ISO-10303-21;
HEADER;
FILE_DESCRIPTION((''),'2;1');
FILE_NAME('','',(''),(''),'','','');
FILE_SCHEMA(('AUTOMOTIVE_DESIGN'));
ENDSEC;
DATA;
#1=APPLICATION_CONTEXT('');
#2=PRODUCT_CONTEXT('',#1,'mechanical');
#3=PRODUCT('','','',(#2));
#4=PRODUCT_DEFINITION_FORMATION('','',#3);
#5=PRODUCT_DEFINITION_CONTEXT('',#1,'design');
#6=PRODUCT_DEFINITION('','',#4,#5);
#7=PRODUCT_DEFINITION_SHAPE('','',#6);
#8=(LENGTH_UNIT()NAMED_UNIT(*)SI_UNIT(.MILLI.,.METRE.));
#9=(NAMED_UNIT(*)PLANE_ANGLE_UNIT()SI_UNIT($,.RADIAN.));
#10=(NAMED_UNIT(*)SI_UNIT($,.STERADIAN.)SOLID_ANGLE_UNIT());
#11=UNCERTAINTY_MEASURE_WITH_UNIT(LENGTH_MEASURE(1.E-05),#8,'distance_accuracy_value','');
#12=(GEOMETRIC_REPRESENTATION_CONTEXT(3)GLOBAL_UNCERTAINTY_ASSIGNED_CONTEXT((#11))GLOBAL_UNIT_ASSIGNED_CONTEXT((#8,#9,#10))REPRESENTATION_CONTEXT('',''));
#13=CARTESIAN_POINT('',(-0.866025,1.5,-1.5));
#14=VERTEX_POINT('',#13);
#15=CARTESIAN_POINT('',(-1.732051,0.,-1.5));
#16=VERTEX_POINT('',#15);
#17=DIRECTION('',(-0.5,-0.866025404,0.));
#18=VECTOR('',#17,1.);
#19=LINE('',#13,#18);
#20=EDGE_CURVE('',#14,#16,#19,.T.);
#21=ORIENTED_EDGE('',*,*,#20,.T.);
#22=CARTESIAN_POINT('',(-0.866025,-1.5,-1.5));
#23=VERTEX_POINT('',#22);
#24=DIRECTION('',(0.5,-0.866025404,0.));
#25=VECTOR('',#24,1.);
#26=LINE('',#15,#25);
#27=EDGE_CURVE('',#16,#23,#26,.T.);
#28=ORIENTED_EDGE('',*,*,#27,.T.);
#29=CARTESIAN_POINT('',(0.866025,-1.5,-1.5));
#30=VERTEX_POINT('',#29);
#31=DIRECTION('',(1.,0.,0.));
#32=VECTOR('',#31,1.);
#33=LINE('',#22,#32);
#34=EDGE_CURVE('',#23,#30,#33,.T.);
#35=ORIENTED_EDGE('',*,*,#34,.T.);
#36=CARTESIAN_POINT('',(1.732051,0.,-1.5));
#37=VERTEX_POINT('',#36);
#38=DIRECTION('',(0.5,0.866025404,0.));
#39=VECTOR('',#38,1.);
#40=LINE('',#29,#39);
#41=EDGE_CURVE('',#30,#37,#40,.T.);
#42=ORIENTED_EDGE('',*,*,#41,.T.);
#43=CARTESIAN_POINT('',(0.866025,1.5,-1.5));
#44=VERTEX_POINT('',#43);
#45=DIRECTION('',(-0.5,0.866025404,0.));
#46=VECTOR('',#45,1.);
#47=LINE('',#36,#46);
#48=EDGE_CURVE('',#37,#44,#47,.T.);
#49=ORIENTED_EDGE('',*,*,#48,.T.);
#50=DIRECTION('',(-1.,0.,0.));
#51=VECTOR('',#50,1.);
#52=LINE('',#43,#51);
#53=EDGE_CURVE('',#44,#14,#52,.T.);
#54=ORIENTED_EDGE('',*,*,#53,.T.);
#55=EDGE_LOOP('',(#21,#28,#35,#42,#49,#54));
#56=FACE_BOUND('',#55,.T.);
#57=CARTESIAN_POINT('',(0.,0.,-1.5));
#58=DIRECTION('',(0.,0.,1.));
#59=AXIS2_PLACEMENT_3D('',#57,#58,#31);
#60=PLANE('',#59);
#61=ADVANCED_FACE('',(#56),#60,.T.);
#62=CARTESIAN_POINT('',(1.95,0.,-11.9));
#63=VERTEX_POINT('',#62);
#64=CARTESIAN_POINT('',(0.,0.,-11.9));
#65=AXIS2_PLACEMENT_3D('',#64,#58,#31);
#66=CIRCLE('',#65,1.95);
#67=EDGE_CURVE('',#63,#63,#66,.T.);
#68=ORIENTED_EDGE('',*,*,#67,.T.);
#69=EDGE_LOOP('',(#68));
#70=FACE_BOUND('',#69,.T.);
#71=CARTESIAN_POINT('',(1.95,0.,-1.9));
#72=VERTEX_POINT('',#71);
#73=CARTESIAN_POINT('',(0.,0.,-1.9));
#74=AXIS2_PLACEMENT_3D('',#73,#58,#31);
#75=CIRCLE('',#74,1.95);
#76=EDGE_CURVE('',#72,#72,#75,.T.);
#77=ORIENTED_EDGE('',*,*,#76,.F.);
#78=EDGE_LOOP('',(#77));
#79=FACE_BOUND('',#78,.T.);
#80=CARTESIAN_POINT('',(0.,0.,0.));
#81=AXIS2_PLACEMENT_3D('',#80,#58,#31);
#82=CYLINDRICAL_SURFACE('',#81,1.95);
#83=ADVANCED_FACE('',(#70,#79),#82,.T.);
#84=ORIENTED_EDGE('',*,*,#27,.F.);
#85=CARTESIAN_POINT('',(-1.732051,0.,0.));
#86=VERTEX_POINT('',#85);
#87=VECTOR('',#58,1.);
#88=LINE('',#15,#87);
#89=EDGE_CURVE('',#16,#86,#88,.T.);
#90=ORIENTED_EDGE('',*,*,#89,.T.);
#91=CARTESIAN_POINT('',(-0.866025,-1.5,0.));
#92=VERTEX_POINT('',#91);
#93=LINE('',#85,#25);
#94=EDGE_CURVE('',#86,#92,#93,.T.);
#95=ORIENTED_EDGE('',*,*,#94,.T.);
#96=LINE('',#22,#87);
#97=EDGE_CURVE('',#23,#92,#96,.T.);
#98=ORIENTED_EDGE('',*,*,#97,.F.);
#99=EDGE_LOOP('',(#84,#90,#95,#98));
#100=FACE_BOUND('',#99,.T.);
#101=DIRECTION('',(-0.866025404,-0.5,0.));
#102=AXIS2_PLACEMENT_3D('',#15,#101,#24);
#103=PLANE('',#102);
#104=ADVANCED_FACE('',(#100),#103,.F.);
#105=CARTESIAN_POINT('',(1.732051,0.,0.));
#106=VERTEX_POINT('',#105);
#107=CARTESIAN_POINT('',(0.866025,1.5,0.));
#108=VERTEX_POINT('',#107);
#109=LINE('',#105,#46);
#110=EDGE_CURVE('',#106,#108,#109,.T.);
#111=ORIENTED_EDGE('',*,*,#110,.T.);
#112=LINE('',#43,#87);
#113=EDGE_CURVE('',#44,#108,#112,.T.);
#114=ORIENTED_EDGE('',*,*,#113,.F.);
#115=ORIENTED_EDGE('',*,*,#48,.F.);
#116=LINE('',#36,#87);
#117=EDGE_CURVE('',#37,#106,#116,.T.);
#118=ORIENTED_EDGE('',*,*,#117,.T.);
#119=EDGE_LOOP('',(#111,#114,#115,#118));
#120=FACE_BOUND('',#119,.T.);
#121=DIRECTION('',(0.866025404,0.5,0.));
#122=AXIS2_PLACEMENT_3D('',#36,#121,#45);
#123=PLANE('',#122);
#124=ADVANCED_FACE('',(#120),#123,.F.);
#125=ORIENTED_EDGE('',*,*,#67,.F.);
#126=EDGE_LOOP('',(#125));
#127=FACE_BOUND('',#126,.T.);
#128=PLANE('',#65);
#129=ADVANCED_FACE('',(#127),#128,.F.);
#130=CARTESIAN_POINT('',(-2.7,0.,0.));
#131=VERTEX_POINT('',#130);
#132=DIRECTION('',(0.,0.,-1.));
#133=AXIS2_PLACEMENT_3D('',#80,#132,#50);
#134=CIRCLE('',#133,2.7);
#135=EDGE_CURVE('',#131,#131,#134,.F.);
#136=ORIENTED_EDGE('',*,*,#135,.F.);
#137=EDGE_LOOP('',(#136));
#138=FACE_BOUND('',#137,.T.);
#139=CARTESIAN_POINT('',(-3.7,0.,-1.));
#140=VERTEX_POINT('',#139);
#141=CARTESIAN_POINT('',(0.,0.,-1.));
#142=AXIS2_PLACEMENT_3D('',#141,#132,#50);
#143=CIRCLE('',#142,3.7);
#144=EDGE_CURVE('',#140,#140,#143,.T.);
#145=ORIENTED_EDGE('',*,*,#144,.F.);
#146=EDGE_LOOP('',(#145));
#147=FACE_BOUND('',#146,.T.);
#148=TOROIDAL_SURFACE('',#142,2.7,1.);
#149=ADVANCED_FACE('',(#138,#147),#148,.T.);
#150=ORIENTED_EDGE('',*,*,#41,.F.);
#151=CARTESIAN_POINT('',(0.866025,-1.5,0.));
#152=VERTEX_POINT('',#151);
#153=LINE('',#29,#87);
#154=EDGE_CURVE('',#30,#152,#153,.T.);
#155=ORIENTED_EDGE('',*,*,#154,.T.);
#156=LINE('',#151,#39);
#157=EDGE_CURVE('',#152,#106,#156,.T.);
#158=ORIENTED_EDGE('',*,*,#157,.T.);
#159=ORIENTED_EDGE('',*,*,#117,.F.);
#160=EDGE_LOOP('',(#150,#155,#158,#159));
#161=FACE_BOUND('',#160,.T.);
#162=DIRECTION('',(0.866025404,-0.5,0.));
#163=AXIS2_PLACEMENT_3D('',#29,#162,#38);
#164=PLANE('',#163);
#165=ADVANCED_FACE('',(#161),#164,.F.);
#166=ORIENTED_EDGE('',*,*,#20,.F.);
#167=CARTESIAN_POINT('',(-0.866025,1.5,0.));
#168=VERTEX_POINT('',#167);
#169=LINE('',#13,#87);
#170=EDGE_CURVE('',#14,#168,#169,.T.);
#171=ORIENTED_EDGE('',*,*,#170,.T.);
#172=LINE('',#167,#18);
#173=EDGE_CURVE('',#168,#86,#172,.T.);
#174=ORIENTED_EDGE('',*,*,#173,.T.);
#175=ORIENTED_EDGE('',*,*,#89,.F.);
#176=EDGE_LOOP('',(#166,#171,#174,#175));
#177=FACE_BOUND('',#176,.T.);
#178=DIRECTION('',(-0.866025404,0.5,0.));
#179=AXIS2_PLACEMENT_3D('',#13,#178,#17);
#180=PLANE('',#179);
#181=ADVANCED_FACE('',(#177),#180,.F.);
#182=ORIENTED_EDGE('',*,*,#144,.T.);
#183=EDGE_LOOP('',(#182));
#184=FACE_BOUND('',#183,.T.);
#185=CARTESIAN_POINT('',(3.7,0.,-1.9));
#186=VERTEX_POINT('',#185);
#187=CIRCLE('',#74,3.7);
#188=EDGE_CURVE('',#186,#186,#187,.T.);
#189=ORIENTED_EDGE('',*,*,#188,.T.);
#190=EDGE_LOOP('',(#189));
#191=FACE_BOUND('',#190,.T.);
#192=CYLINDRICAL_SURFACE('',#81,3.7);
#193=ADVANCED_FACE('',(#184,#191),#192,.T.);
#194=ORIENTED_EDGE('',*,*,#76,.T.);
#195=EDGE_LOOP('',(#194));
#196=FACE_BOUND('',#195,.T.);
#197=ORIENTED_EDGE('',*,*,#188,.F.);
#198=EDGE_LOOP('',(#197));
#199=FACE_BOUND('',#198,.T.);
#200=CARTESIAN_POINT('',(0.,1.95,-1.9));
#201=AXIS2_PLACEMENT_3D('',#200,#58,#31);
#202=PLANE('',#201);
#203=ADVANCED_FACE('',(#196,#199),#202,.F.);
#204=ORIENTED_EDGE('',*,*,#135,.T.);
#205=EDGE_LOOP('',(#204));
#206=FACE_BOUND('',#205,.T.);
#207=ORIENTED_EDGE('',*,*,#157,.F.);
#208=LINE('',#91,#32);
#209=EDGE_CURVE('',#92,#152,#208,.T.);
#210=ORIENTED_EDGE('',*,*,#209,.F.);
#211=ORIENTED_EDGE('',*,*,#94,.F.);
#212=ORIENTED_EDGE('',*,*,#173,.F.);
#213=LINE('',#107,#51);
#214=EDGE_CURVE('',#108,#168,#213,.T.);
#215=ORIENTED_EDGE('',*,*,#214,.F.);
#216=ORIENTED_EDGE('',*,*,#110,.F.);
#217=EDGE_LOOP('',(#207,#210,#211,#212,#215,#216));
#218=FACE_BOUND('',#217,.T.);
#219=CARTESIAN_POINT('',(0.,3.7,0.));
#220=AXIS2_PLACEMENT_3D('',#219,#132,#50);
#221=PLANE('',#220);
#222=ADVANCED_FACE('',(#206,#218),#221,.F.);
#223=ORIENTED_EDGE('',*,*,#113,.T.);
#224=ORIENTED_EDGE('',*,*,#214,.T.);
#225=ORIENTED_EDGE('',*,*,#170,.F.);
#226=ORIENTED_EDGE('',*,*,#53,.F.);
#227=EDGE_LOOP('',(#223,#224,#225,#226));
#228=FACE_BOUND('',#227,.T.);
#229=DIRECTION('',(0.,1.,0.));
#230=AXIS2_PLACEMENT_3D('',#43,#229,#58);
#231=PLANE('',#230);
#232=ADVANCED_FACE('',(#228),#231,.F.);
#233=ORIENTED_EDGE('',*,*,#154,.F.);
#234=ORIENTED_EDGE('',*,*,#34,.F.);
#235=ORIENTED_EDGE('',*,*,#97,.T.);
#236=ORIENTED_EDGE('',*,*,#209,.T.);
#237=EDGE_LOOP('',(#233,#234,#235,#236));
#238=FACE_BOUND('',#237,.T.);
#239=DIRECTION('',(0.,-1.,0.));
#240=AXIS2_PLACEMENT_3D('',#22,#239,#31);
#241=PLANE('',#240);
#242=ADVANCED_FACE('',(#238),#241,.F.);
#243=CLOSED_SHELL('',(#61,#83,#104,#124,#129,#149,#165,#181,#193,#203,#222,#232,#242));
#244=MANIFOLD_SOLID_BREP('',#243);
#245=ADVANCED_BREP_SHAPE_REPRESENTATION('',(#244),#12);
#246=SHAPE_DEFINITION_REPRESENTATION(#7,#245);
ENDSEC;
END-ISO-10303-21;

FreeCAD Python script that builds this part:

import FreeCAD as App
import Part
import Sketcher
from FreeCAD import Vector
Q = App.Units.Quantity


def edges_at(feature, points):
    """Names of the edges that pass closest to the given points."""
    edges = feature.Shape.Edges
    near = lambda p: min(range(len(edges)), key=lambda i: edges[i].distToShape(Part.Vertex(*p))[0])
    return sorted({f"Edge{near(p) + 1}" for p in points})


def add_polygon(sketch, points):
    """Adds a closed chain of lines whose ends are joined by coincident constraints."""
    first, n = sketch.GeometryCount, len(points)
    for a, b in zip(points, points[1:] + points[:1]):
        sketch.addGeometry(Part.LineSegment(App.Vector(*a, 0), App.Vector(*b, 0)), False)
    for i in range(n):
        sketch.addConstraint(Sketcher.Constraint("Coincident", first + i, 2, first + (i + 1) % n, 1))

doc = App.newDocument("Part")
body = doc.addObject("PartDesign::Body", "Body")

# Sketch on YZ plane
sketch1 = body.newObject("Sketcher::SketchObject", "Sketch")
sketch1.AttachmentSupport = (doc.getObject("YZ_Plane"), [""])
sketch1.MapMode = "FlatFace"
add_polygon(sketch1, [(1.9, -1.9), (3.7, -1.9), (3.7, 0), (0, 0), (0, -11.9), (1.9, -11.9)])  # lines 0-5
sketch1.addConstraint([
    Sketcher.Constraint("Horizontal", 0),
    Sketcher.Constraint("Vertical", 1),
    Sketcher.Constraint("Horizontal", 2),
    Sketcher.Constraint("Vertical", 3),
    Sketcher.Constraint("Horizontal", 4),
    Sketcher.Constraint("Vertical", 5),
    Sketcher.Constraint("Coincident", 2, 2, -1, 1),
    Sketcher.Constraint("DistanceY", 5, 1, 5, 2, Q("10 mm")),
    Sketcher.Constraint("DistanceX", 2, 2, 2, 1, Q("3.7 mm")),
    Sketcher.Constraint("DistanceY", 1, 1, 1, 2, Q("1.9 mm")),
    Sketcher.Constraint("DistanceX", 0, 1, 0, 2, Q("1.75 mm")),
])
revolution = body.newObject("PartDesign::Revolution", "Revolution")
revolution.Profile = sketch1
revolution.ReferenceAxis = (sketch1, ["V_Axis"])
revolution.Angle = 360
doc.recompute()

fillet = body.newObject("PartDesign::Fillet", "Fillet")
fillet.Base = (revolution, edges_at(revolution, [(-3.7, 0, 0)]))
fillet.Radius = 1

# Sketch on XY plane
sketch2 = body.newObject("Sketcher::SketchObject", "Sketch001")
sketch2.AttachmentSupport = (doc.getObject("XY_Plane"), [""])
sketch2.MapMode = "FlatFace"
add_polygon(sketch2, [(-1.7, 0), (-0.9, -1.5), (0.9, -1.5), (1.7, 0), (0.9, 1.5), (-0.9, 1.5)])  # lines 0-5
sketch2.addConstraint([
    Sketcher.Constraint("Horizontal", 1),
    Sketcher.Constraint("Horizontal", 4),
    Sketcher.Constraint("Symmetric", 0, 2, 3, 2, -1, 1),
    Sketcher.Constraint("Symmetric", 2, 2, 5, 2, -1, 1),
    Sketcher.Constraint("PointOnObject", 2, 2, -1),
    Sketcher.Constraint("Parallel", 2, 5),
    Sketcher.Constraint("Vertical", 1, 2, 3, 2),
    Sketcher.Constraint("Angle", 0, Q("-60 deg")),
    Sketcher.Constraint("DistanceY", 1, 2, 3, 2, Q("3 mm")),
    Sketcher.Constraint("DistanceX", 1, 1, 1, 2, Q("1.732051 mm")),
])
pocket1 = body.newObject("PartDesign::Pocket", "Pocket")
pocket1.Profile = sketch2
pocket1.Length = 1.5

doc.recompute()
